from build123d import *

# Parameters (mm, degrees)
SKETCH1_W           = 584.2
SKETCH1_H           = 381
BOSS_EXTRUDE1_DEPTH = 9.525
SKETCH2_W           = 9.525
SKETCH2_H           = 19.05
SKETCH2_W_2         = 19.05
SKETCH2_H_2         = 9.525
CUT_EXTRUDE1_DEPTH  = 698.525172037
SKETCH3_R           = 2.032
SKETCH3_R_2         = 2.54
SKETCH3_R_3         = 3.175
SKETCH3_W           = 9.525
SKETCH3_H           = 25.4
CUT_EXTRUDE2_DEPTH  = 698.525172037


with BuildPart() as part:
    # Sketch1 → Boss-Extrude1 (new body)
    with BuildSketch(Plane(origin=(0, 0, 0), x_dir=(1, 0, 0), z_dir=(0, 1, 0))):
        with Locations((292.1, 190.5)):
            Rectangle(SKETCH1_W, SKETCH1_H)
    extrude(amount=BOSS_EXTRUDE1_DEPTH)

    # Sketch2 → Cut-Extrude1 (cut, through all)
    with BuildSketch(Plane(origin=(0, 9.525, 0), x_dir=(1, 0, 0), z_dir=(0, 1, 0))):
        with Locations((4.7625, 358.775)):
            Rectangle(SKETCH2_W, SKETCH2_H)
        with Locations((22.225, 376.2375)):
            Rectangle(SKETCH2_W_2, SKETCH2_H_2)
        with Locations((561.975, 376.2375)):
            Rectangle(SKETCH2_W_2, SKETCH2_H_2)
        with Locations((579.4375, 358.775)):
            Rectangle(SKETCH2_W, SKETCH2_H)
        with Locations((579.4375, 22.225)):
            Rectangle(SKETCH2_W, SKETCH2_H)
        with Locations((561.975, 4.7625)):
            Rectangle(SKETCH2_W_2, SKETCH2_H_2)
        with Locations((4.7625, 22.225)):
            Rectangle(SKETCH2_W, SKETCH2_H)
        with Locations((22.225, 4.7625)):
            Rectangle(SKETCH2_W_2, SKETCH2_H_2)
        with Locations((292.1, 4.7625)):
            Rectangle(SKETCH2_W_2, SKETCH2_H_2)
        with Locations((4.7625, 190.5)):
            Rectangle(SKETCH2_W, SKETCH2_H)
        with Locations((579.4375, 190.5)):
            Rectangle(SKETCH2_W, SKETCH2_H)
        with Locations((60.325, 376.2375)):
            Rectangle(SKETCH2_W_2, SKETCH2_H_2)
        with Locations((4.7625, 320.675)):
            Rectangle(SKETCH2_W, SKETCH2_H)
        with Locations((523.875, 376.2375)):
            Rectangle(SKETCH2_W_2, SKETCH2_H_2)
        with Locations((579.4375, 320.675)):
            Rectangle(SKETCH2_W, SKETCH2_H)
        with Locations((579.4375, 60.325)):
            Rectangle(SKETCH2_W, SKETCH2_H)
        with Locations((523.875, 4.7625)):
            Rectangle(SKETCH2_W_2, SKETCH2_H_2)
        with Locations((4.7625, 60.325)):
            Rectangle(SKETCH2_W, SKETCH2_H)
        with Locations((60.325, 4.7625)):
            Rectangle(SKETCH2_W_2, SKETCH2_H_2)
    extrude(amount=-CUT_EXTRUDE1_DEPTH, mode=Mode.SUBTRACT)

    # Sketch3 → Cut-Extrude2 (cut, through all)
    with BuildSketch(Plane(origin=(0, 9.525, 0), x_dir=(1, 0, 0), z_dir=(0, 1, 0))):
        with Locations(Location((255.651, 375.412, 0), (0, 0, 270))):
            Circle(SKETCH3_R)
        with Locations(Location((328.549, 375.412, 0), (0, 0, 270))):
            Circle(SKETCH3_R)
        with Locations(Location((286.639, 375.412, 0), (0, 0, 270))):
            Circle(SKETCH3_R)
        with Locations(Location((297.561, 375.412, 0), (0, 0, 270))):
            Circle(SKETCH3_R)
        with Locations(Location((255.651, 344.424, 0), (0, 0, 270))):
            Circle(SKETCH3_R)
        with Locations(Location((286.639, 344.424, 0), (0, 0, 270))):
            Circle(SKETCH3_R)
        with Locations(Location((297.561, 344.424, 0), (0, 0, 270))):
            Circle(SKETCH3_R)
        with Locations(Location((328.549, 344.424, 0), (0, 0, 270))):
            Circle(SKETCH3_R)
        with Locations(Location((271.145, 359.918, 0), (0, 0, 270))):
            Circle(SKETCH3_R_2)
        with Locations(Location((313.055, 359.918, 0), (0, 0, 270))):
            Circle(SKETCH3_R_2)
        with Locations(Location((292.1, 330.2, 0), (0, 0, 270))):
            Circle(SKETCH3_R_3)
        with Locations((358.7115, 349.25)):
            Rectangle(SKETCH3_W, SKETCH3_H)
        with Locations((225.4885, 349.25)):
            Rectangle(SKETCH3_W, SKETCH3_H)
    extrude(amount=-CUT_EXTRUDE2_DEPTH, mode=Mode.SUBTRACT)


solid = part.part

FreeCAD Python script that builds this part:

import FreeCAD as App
import Part
import Sketcher
Q = App.Units.Quantity


def add_polygon(sketch, points):
    """Adds a closed chain of lines whose ends are joined by coincident constraints."""
    first, n = sketch.GeometryCount, len(points)
    for a, b in zip(points, points[1:] + points[:1]):
        sketch.addGeometry(Part.LineSegment(App.Vector(*a, 0), App.Vector(*b, 0)), False)
    for i in range(n):
        sketch.addConstraint(Sketcher.Constraint("Coincident", first + i, 2, first + (i + 1) % n, 1))

doc = App.newDocument("Part")
body = doc.addObject("PartDesign::Body", "Body")

# Sketch on XZ plane
sketch1 = doc.addObject("Sketcher::SketchObject", "Sketch")
body.addObject(sketch1)
sketch1.AttachmentSupport = (doc.XZ_Plane, [""])
sketch1.MapMode = "FlatFace"
add_polygon(sketch1, [(0, -381), (0, 0), (584, 0), (584, -381)])  # lines 0-3
sketch1.addConstraint([
    Sketcher.Constraint("Vertical", 0),
    Sketcher.Constraint("Horizontal", 1),
    Sketcher.Constraint("Vertical", 2),
    Sketcher.Constraint("Horizontal", 3),
    Sketcher.Constraint("Coincident", 0, 2, -1, 1),
    Sketcher.Constraint("DistanceX", 1, 1, 1, 2, Q("23 in")),
    Sketcher.Constraint("DistanceY", 0, 1, 0, 2, Q("15 in")),
])
pad1 = doc.addObject("PartDesign::Pad", "Pad")
body.addObject(pad1)
pad1.Profile = sketch1
pad1.Length = Q("0.375 in")
pad1.Reversed = True

# Sketch on XZ plane
sketch2 = doc.addObject("Sketcher::SketchObject", "Sketch001")
body.addObject(sketch2)
sketch2.AttachmentSupport = (doc.XZ_Plane, [""])
sketch2.MapMode = "FlatFace"
sketch2.AttachmentOffset = App.Placement(App.Vector(0, 0, -0.375 * 25.4), App.Rotation())
add_polygon(sketch2, [(0, -368), (0, -349), (10, -349), (10, -368)])  # lines 0-3
add_polygon(sketch2, [(13, -381), (13, -371), (32, -371), (32, -381)])  # lines 4-7
add_polygon(sketch2, [(552, -381), (552, -371), (572, -371), (572, -381)])  # lines 8-11
add_polygon(sketch2, [(575, -368), (575, -349), (584, -349), (584, -368)])  # lines 12-15
add_polygon(sketch2, [(575, -32), (575, -13), (584, -13), (584, -32)])  # lines 16-19
add_polygon(sketch2, [(552, -10), (552, 0), (572, 0), (572, -10)])  # lines 20-23
add_polygon(sketch2, [(0, -32), (0, -13), (10, -13), (10, -32)])  # lines 24-27
add_polygon(sketch2, [(13, -10), (13, 0), (32, 0), (32, -10)])  # lines 28-31
add_polygon(sketch2, [(283, -10), (283, 0), (302, 0), (302, -10)])  # lines 32-35
add_polygon(sketch2, [(0, -200), (0, -181), (10, -181), (10, -200)])  # lines 36-39
add_polygon(sketch2, [(575, -200), (575, -181), (584, -181), (584, -200)])  # lines 40-43
add_polygon(sketch2, [(51, -381), (51, -371), (70, -371), (70, -381)])  # lines 44-47
add_polygon(sketch2, [(0, -330), (0, -311), (10, -311), (10, -330)])  # lines 48-51
add_polygon(sketch2, [(514, -381), (514, -371), (533, -371), (533, -381)])  # lines 52-55
add_polygon(sketch2, [(575, -330), (575, -311), (584, -311), (584, -330)])  # lines 56-59
add_polygon(sketch2, [(575, -70), (575, -51), (584, -51), (584, -70)])  # lines 60-63
add_polygon(sketch2, [(514, -10), (514, 0), (533, 0), (533, -10)])  # lines 64-67
add_polygon(sketch2, [(0, -70), (0, -51), (10, -51), (10, -70)])  # lines 68-71
add_polygon(sketch2, [(51, -10), (51, 0), (70, 0), (70, -10)])  # lines 72-75
sketch2.addConstraint([
    Sketcher.Constraint("Vertical", 0),
    Sketcher.Constraint("Horizontal", 1),
    Sketcher.Constraint("Vertical", 2),
    Sketcher.Constraint("Horizontal", 3),
    Sketcher.Constraint("Vertical", 4),
    Sketcher.Constraint("Horizontal", 5),
    Sketcher.Constraint("Vertical", 6),
    Sketcher.Constraint("Horizontal", 7),
    Sketcher.Constraint("Vertical", 8),
    Sketcher.Constraint("Horizontal", 9),
    Sketcher.Constraint("Vertical", 10),
    Sketcher.Constraint("Horizontal", 11),
    Sketcher.Constraint("Vertical", 12),
    Sketcher.Constraint("Horizontal", 13),
    Sketcher.Constraint("Vertical", 14),
    Sketcher.Constraint("Horizontal", 15),
    Sketcher.Constraint("Vertical", 16),
    Sketcher.Constraint("Horizontal", 17),
    Sketcher.Constraint("Vertical", 18),
    Sketcher.Constraint("Horizontal", 19),
    Sketcher.Constraint("Vertical", 20),
    Sketcher.Constraint("Horizontal", 21),
    Sketcher.Constraint("Vertical", 22),
    Sketcher.Constraint("Horizontal", 23),
    Sketcher.Constraint("Vertical", 24),
    Sketcher.Constraint("Horizontal", 25),
    Sketcher.Constraint("Vertical", 26),
    Sketcher.Constraint("Horizontal", 27),
    Sketcher.Constraint("Vertical", 28),
    Sketcher.Constraint("Horizontal", 29),
    Sketcher.Constraint("Vertical", 30),
    Sketcher.Constraint("Horizontal", 31),
    Sketcher.Constraint("Vertical", 32),
    Sketcher.Constraint("Horizontal", 33),
    Sketcher.Constraint("Vertical", 34),
    Sketcher.Constraint("Horizontal", 35),
    Sketcher.Constraint("Vertical", 36),
    Sketcher.Constraint("Horizontal", 37),
    Sketcher.Constraint("Vertical", 38),
    Sketcher.Constraint("Horizontal", 39),
    Sketcher.Constraint("Vertical", 40),
    Sketcher.Constraint("Horizontal", 41),
    Sketcher.Constraint("Vertical", 42),
    Sketcher.Constraint("Horizontal", 43),
    Sketcher.Constraint("Vertical", 44),
    Sketcher.Constraint("Horizontal", 45),
    Sketcher.Constraint("Vertical", 46),
    Sketcher.Constraint("Horizontal", 47),
    Sketcher.Constraint("Vertical", 48),
    Sketcher.Constraint("Horizontal", 49),
    Sketcher.Constraint("Vertical", 50),
    Sketcher.Constraint("Horizontal", 51),
    Sketcher.Constraint("Vertical", 52),
    Sketcher.Constraint("Horizontal", 53),
    Sketcher.Constraint("Vertical", 54),
    Sketcher.Constraint("Horizontal", 55),
    Sketcher.Constraint("Vertical", 56),
    Sketcher.Constraint("Horizontal", 57),
    Sketcher.Constraint("Vertical", 58),
    Sketcher.Constraint("Horizontal", 59),
    Sketcher.Constraint("Vertical", 60),
    Sketcher.Constraint("Horizontal", 61),
    Sketcher.Constraint("Vertical", 62),
    Sketcher.Constraint("Horizontal", 63),
    Sketcher.Constraint("Vertical", 64),
    Sketcher.Constraint("Horizontal", 65),
    Sketcher.Constraint("Vertical", 66),
    Sketcher.Constraint("Horizontal", 67),
    Sketcher.Constraint("Vertical", 68),
    Sketcher.Constraint("Horizontal", 69),
    Sketcher.Constraint("Vertical", 70),
    Sketcher.Constraint("Horizontal", 71),
    Sketcher.Constraint("Vertical", 72),
    Sketcher.Constraint("Horizontal", 73),
    Sketcher.Constraint("Vertical", 74),
    Sketcher.Constraint("Horizontal", 75),
    Sketcher.Constraint("PointOnObject", 0, 2, -2),
    Sketcher.Constraint("PointOnObject", 20, 2, -1),
    Sketcher.Constraint("PointOnObject", 24, 2, -2),
    Sketcher.Constraint("PointOnObject", 28, 2, -1),
    Sketcher.Constraint("PointOnObject", 32, 2, -1),
    Sketcher.Constraint("PointOnObject", 36, 2, -2),
    Sketcher.Constraint("PointOnObject", 48, 2, -2),
    Sketcher.Constraint("PointOnObject", 64, 2, -1),
    Sketcher.Constraint("PointOnObject", 68, 2, -2),
    Sketcher.Constraint("PointOnObject", 72, 2, -1),
    Sketcher.Constraint("Horizontal", 5, 2, 8, 2),
    Sketcher.Constraint("Horizontal", 7, 2, 10, 2),
    Sketcher.Constraint("Horizontal", 1, 2, 12, 2),
    Sketcher.Constraint("Horizontal", 3, 2, 14, 2),
    Sketcher.Constraint("Horizontal", 17, 2, 24, 2),
    Sketcher.Constraint("Horizontal", 19, 2, 26, 2),
    Sketcher.Constraint("Horizontal", 23, 2, 30, 2),
    Sketcher.Constraint("Horizontal", 31, 2, 34, 2),
    Sketcher.Constraint("Horizontal", 37, 2, 40, 2),
    Sketcher.Constraint("Horizontal", 39, 2, 42, 2),
    Sketcher.Constraint("Horizontal", 9, 2, 44, 2),
    Sketcher.Constraint("Horizontal", 11, 2, 46, 2),
    Sketcher.Constraint("Horizontal", 45, 2, 52, 2),
    Sketcher.Constraint("Horizontal", 47, 2, 54, 2),
    Sketcher.Constraint("Horizontal", 49, 2, 56, 2),
    Sketcher.Constraint("Horizontal", 51, 2, 58, 2),
    Sketcher.Constraint("Horizontal", 35, 2, 66, 2),
    Sketcher.Constraint("Horizontal", 61, 2, 68, 2),
    Sketcher.Constraint("Horizontal", 63, 2, 70, 2),
    Sketcher.Constraint("Horizontal", 67, 2, 74, 2),
    Sketcher.Constraint("Vertical", 15, 2, 16, 2),
    Sketcher.Constraint("Vertical", 14, 2, 17, 2),
    Sketcher.Constraint("Vertical", 11, 2, 20, 2),
    Sketcher.Constraint("Vertical", 10, 2, 21, 2),
    Sketcher.Constraint("Vertical", 2, 2, 25, 2),
    Sketcher.Constraint("Vertical", 7, 2, 28, 2),
    Sketcher.Constraint("Vertical", 6, 2, 29, 2),
    Sketcher.Constraint("Vertical", 26, 2, 37, 2),
    Sketcher.Constraint("Vertical", 19, 2, 40, 2),
    Sketcher.Constraint("Vertical", 18, 2, 41, 2),
    Sketcher.Constraint("Vertical", 38, 2, 49, 2),
    Sketcher.Constraint("Vertical", 43, 2, 56, 2),
    Sketcher.Constraint("Vertical", 42, 2, 57, 2),
    Sketcher.Constraint("Vertical", 59, 2, 60, 2),
    Sketcher.Constraint("Vertical", 58, 2, 61, 2),
    Sketcher.Constraint("Vertical", 55, 2, 64, 2),
    Sketcher.Constraint("Vertical", 54, 2, 65, 2),
    Sketcher.Constraint("Vertical", 50, 2, 69, 2),
    Sketcher.Constraint("Vertical", 47, 2, 72, 2),
    Sketcher.Constraint("Vertical", 46, 2, 73, 2),
    Sketcher.Constraint("Equal", 7, 9),
    Sketcher.Constraint("Equal", 3, 13),
    Sketcher.Constraint("Equal", 31, 33),
    Sketcher.Constraint("Equal", 35, 45),
    Sketcher.Constraint("Equal", 47, 53),
    Sketcher.Constraint("Equal", 75, 0),
    Sketcher.Constraint("Equal", 71, 4),
    Sketcher.Constraint("Equal", 14, 16),
    Sketcher.Constraint("Equal", 10, 20),
    Sketcher.Constraint("Equal", 26, 36),
    Sketcher.Constraint("Equal", 42, 48),
    Sketcher.Constraint("Equal", 58, 60),
    Sketcher.Constraint("DistanceY", 6, 2, -1, 1, Q("15 in")),
    Sketcher.Constraint("DistanceX", -1, 1, 13, 2, Q("23 in")),
    Sketcher.Constraint("DistanceX", -1, 1, 44, 2, Q("2 in")),
    Sketcher.Constraint("DistanceY", 50, 2, -1, 1, Q("13 in")),
    Sketcher.Constraint("DistanceX", -1, 1, 53, 2, Q("21 in")),
    Sketcher.Constraint("DistanceY", 60, 2, -1, 1, Q("2 in")),
    Sketcher.Constraint("DistanceX", 5, 1, 5, 2, Q("0.75 in")),
    Sketcher.Constraint("DistanceY", 2, 2, -1, 1, Q("14.5 in")),
    Sketcher.Constraint("DistanceX", -1, 1, 4, 2, Q("0.5 in")),
    Sketcher.Constraint("DistanceX", -1, 1, 9, 2, Q("22.5 in")),
    Sketcher.Constraint("DistanceY", 16, 2, -1, 1, Q("0.5 in")),
    Sketcher.Constraint("DistanceX", 1, 1, 1, 2, Q("0.375 in")),
    Sketcher.Constraint("DistanceX", -1, 1, 32, 2, Q("11.125 in")),
    Sketcher.Constraint("DistanceY", 36, 2, -1, 1, Q("7.125 in")),
])
pocket1 = doc.addObject("PartDesign::Pocket", "Pocket")
body.addObject(pocket1)
pocket1.Profile = sketch2
pocket1.Type = "ThroughAll"
pocket1.Reversed = True

# Sketch on XZ plane
sketch3 = doc.addObject("Sketcher::SketchObject", "Sketch002")
body.addObject(sketch3)
sketch3.AttachmentSupport = (doc.XZ_Plane, [""])
sketch3.MapMode = "FlatFace"
sketch3.AttachmentOffset = App.Placement(App.Vector(0, 0, -0.375 * 25.4), App.Rotation())
sketch3.addGeometry(Part.Circle(App.Vector(255.7, -375.4, 0), App.Vector(0, 0, 1), 2), False)  # 0
sketch3.addGeometry(Part.Circle(App.Vector(328.5, -375.4, 0), App.Vector(0, 0, 1), 2), False)  # 1
sketch3.addGeometry(Part.Circle(App.Vector(286.6, -375.4, 0), App.Vector(0, 0, 1), 2), False)  # 2
sketch3.addGeometry(Part.Circle(App.Vector(297.6, -375.4, 0), App.Vector(0, 0, 1), 2), False)  # 3
sketch3.addGeometry(Part.Circle(App.Vector(255.7, -344.4, 0), App.Vector(0, 0, 1), 2), False)  # 4
sketch3.addGeometry(Part.Circle(App.Vector(286.6, -344.4, 0), App.Vector(0, 0, 1), 2), False)  # 5
sketch3.addGeometry(Part.Circle(App.Vector(297.6, -344.4, 0), App.Vector(0, 0, 1), 2), False)  # 6
sketch3.addGeometry(Part.Circle(App.Vector(328.5, -344.4, 0), App.Vector(0, 0, 1), 2), False)  # 7
sketch3.addGeometry(Part.Circle(App.Vector(271.1, -359.9, 0), App.Vector(0, 0, 1), 2.5), False)  # 8
sketch3.addGeometry(Part.Circle(App.Vector(313.1, -359.9, 0), App.Vector(0, 0, 1), 2.5), False)  # 9
sketch3.addGeometry(Part.Circle(App.Vector(292.1, -330.2, 0), App.Vector(0, 0, 1), 3.2), False)  # 10
add_polygon(sketch3, [(353.9, -361.9), (353.9, -336.6), (363.5, -336.6), (363.5, -361.9)])  # lines 11-14
add_polygon(sketch3, [(220.7, -361.9), (220.7, -336.6), (230.3, -336.6), (230.3, -361.9)])  # lines 15-18
sketch3.addConstraint([
    Sketcher.Constraint("Vertical", 11),
    Sketcher.Constraint("Horizontal", 12),
    Sketcher.Constraint("Vertical", 13),
    Sketcher.Constraint("Horizontal", 14),
    Sketcher.Constraint("Vertical", 15),
    Sketcher.Constraint("Horizontal", 16),
    Sketcher.Constraint("Vertical", 17),
    Sketcher.Constraint("Horizontal", 18),
    Sketcher.Constraint("Equal", 0, 1),
    Sketcher.Constraint("Equal", 1, 2),
    Sketcher.Constraint("Equal", 2, 3),
    Sketcher.Constraint("Equal", 3, 4),
    Sketcher.Constraint("Equal", 4, 5),
    Sketcher.Constraint("Equal", 5, 6),
    Sketcher.Constraint("Equal", 6, 7),
    Sketcher.Constraint("Equal", 8, 9),
    Sketcher.Constraint("Horizontal", 0, 3, 1, 3),
    Sketcher.Constraint("Horizontal", 1, 3, 2, 3),
    Sketcher.Constraint("Horizontal", 2, 3, 3, 3),
    Sketcher.Constraint("Horizontal", 4, 3, 5, 3),
    Sketcher.Constraint("Horizontal", 5, 3, 6, 3),
    Sketcher.Constraint("Horizontal", 6, 3, 7, 3),
    Sketcher.Constraint("Horizontal", 8, 3, 9, 3),
    Sketcher.Constraint("Horizontal", 12, 2, 15, 2),
    Sketcher.Constraint("Horizontal", 14, 2, 17, 2),
    Sketcher.Constraint("Vertical", 0, 3, 4, 3),
    Sketcher.Constraint("Vertical", 2, 3, 5, 3),
    Sketcher.Constraint("Vertical", 3, 3, 6, 3),
    Sketcher.Constraint("Vertical", 1, 3, 7, 3),
    Sketcher.Constraint("Equal", 14, 16),
    Sketcher.Constraint("Diameter", 8, Q("0.2 in")),
    Sketcher.Constraint("Diameter", 0, Q("0.16 in")),
    Sketcher.Constraint("Diameter", 10, Q("0.25 in")),
    Sketcher.Constraint("DistanceY", 11, 1, 11, 2, Q("1 in")),
    Sketcher.Constraint("DistanceY", 10, 3, -1, 1, Q("13 in")),
    Sketcher.Constraint("DistanceX", 7, 3, 11, 2, Q("1 in")),
    Sketcher.Constraint("DistanceX", 16, 2, 4, 3, Q("1 in")),
    Sketcher.Constraint("DistanceX", -1, 1, 10, 3, Q("11.5 in")),
    Sketcher.Constraint("DistanceX", 12, 1, 12, 2, Q("0.375 in")),
    Sketcher.Constraint("DistanceY", 0, 3, -1, 1, Q("14.78 in")),
    Sketcher.Constraint("DistanceY", 4, 3, -1, 1, Q("13.56 in")),
    Sketcher.Constraint("DistanceY", 8, 3, -1, 1, Q("14.17 in")),
    Sketcher.Constraint("DistanceY", 11, 2, -1, 1, Q("13.25 in")),
    Sketcher.Constraint("DistanceX", -1, 1, 12, 2, Q("14.31 in")),
    Sketcher.Constraint("DistanceX", -1, 1, 15, 2, Q("8.69 in")),
    Sketcher.Constraint("DistanceX", 0, 3, 2, 3, Q("1.22 in")),
    Sketcher.Constraint("DistanceX", 2, 3, 3, 3, Q("0.43 in")),
    Sketcher.Constraint("DistanceX", 0, 3, 8, 3, Q("0.61 in")),
    Sketcher.Constraint("DistanceX", 9, 3, 1, 3, Q("0.61 in")),
])
pocket2 = doc.addObject("PartDesign::Pocket", "Pocket001")
body.addObject(pocket2)
pocket2.Profile = sketch3
pocket2.Type = "ThroughAll"
pocket2.Reversed = True

doc.recompute()
